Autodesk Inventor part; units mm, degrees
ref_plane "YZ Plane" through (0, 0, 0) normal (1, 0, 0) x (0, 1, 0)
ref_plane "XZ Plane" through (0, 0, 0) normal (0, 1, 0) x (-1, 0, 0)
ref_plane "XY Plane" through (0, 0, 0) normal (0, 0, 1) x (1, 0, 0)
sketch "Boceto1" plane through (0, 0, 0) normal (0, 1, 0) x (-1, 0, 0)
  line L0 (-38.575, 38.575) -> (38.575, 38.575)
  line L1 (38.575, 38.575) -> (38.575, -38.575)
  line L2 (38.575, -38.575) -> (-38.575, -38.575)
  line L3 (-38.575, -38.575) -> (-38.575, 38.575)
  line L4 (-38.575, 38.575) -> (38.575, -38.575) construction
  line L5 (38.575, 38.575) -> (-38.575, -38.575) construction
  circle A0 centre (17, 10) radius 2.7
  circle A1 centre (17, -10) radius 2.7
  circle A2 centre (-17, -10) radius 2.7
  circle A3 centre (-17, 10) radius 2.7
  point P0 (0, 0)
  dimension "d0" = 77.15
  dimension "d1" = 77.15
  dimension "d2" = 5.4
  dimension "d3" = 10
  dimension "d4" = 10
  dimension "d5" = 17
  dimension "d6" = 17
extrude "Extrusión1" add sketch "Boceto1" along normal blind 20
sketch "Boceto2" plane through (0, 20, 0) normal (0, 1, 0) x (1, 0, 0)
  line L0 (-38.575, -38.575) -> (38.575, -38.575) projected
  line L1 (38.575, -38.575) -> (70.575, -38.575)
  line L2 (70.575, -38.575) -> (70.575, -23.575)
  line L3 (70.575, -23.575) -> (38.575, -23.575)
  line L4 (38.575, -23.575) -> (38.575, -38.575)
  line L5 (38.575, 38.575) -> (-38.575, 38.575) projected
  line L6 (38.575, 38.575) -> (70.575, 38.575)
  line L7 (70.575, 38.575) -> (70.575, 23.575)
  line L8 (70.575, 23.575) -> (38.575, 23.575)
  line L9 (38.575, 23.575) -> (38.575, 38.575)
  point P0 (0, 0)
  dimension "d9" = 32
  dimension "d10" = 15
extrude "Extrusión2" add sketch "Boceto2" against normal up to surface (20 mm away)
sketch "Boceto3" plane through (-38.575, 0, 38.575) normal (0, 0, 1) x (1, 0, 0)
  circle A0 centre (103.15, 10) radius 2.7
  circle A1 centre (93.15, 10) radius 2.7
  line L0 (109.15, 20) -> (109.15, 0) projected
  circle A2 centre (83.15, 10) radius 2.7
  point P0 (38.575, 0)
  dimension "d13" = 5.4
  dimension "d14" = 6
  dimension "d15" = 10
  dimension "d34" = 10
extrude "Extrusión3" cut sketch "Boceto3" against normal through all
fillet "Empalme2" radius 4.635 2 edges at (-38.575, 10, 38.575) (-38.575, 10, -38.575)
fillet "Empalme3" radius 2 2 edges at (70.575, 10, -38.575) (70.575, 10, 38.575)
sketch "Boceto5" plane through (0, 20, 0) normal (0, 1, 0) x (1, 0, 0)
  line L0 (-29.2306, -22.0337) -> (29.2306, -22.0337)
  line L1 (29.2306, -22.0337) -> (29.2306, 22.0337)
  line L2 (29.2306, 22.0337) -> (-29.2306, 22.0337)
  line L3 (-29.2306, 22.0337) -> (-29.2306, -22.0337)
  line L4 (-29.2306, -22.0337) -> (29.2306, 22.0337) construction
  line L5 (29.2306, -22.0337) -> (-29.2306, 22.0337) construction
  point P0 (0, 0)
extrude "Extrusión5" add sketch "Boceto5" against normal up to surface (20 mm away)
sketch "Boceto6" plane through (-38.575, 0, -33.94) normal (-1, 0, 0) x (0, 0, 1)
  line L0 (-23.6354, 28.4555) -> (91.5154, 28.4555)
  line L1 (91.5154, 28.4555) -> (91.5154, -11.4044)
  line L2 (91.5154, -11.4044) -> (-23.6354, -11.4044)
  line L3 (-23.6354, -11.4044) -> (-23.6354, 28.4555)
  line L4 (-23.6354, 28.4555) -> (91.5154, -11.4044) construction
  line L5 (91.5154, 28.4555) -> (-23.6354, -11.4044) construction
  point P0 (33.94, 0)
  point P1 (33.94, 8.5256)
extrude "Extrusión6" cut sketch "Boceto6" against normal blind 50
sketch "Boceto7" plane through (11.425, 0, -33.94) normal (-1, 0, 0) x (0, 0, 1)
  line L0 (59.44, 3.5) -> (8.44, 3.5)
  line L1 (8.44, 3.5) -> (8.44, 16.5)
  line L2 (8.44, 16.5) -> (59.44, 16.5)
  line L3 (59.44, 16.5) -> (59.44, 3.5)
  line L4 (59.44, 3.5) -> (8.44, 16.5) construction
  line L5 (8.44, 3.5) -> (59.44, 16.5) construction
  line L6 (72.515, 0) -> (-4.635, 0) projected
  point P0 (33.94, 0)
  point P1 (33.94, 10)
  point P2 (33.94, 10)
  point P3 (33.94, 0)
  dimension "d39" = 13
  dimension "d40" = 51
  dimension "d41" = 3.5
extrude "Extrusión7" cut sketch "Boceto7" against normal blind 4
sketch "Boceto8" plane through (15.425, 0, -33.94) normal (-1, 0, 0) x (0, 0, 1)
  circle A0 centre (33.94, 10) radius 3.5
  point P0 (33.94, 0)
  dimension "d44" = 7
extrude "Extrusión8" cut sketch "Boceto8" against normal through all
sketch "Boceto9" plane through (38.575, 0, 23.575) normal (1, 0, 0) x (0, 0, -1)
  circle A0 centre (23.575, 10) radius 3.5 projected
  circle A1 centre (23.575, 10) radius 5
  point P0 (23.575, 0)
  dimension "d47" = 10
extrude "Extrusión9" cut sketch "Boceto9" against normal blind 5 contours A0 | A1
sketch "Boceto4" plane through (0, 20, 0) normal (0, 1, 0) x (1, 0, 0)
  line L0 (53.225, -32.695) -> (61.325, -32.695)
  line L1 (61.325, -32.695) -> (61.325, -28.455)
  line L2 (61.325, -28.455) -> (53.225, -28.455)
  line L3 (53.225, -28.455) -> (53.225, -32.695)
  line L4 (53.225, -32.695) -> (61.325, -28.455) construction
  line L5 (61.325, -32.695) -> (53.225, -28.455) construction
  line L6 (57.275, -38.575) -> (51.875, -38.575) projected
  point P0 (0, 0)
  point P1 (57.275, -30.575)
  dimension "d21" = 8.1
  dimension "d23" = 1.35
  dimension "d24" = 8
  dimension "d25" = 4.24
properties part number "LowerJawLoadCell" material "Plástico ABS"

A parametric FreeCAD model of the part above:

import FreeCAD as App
import Part
import Sketcher
Q = App.Units.Quantity


def edges_at(feature, points):
    """Names of the edges that pass closest to the given points."""
    edges = feature.Shape.Edges
    near = lambda p: min(range(len(edges)), key=lambda i: edges[i].distToShape(Part.Vertex(*p))[0])
    return sorted({f"Edge{near(p) + 1}" for p in points})

doc = App.newDocument("Part")
body = doc.addObject("PartDesign::Body", "Body")

sketch1 = doc.addObject("Sketcher::SketchObject", "Sketch")
body.addObject(sketch1)
sketch1.AttachmentSupport = (doc.XZ_Plane, [""])
sketch1.MapMode = "FlatFace"
sketch1.addGeometry(Part.LineSegment(App.Vector(-38.6, 38.6, 0), App.Vector(38.6, 38.6, 0)), False)
sketch1.addGeometry(Part.LineSegment(App.Vector(38.6, 38.6, 0), App.Vector(38.6, -38.6, 0)), False)
sketch1.addGeometry(Part.LineSegment(App.Vector(38.6, -38.6, 0), App.Vector(-38.6, -38.6, 0)), False)
sketch1.addGeometry(Part.LineSegment(App.Vector(-38.6, -38.6, 0), App.Vector(-38.6, 38.6, 0)), False)
sketch1.addGeometry(Part.Circle(App.Vector(17, -10, 0), App.Vector(0, 0, 1), 2.7), False)
sketch1.addGeometry(Part.Circle(App.Vector(-17, -10, 0), App.Vector(0, 0, 1), 2.7), False)
sketch1.addGeometry(Part.Circle(App.Vector(17, 10, 0), App.Vector(0, 0, 1), 2.7), False)
sketch1.addGeometry(Part.Circle(App.Vector(-17, 10, 0), App.Vector(0, 0, 1), 2.7), False)
sketch1.addConstraint(Sketcher.Constraint("Coincident", 0, 2, 1, 1))
sketch1.addConstraint(Sketcher.Constraint("Coincident", 1, 2, 2, 1))
sketch1.addConstraint(Sketcher.Constraint("Coincident", 2, 2, 3, 1))
sketch1.addConstraint(Sketcher.Constraint("Coincident", 3, 2, 0, 1))
sketch1.addConstraint(Sketcher.Constraint("Horizontal", 0))
sketch1.addConstraint(Sketcher.Constraint("Vertical", 1))
sketch1.addConstraint(Sketcher.Constraint("Horizontal", 2))
sketch1.addConstraint(Sketcher.Constraint("Vertical", 3))
sketch1.addConstraint(Sketcher.Constraint("Equal", 4, 5))
sketch1.addConstraint(Sketcher.Constraint("Equal", 5, 6))
sketch1.addConstraint(Sketcher.Constraint("Equal", 6, 7))
sketch1.addConstraint(Sketcher.Constraint("Symmetric", 5, 3, 6, 3, -1, 1))
sketch1.addConstraint(Sketcher.Constraint("Symmetric", 4, 3, 7, 3, -1, 1))
sketch1.addConstraint(Sketcher.Constraint("Symmetric", 0, 2, 2, 2, -1, 1))
sketch1.addConstraint(Sketcher.Constraint("Symmetric", 4, 3, 5, 3, -2))
sketch1.addConstraint(Sketcher.Constraint("Equal", 2, 1))
sketch1.addConstraint(Sketcher.Constraint("Diameter", 4, Q("5.4 mm")))
sketch1.addConstraint(Sketcher.Constraint("DistanceX", -1, 1, 4, 3, Q("17 mm")))
sketch1.addConstraint(Sketcher.Constraint("DistanceY", 4, 3, -1, 1, Q("10 mm")))
sketch1.addConstraint(Sketcher.Constraint("DistanceX", 0, 1, 0, 2, Q("77.15 mm")))
pad1 = doc.addObject("PartDesign::Pad", "Pad")
body.addObject(pad1)
pad1.Profile = sketch1
pad1.Length = 20
pad1.Reversed = True

sketch2 = doc.addObject("Sketcher::SketchObject", "Sketch001")
body.addObject(sketch2)
sketch2.AttachmentSupport = (doc.XZ_Plane, [""])
sketch2.MapMode = "FlatFace"
sketch2.AttachmentOffset = App.Placement(App.Vector(0, 0, -20), App.Rotation())
sketch2.addGeometry(Part.LineSegment(App.Vector(39, 24, 0), App.Vector(39, 39, 0)), False)
sketch2.addGeometry(Part.LineSegment(App.Vector(39, 39, 0), App.Vector(71, 39, 0)), False)
sketch2.addGeometry(Part.LineSegment(App.Vector(71, 39, 0), App.Vector(71, 24, 0)), False)
sketch2.addGeometry(Part.LineSegment(App.Vector(71, 24, 0), App.Vector(39, 24, 0)), False)
sketch2.addGeometry(Part.LineSegment(App.Vector(71, -39, 0), App.Vector(39, -39, 0)), False)
sketch2.addGeometry(Part.LineSegment(App.Vector(39, -39, 0), App.Vector(39, -24, 0)), False)
sketch2.addGeometry(Part.LineSegment(App.Vector(39, -24, 0), App.Vector(71, -24, 0)), False)
sketch2.addGeometry(Part.LineSegment(App.Vector(71, -24, 0), App.Vector(71, -39, 0)), False)
sketch2.addConstraint(Sketcher.Constraint("Coincident", 0, 2, 1, 1))
sketch2.addConstraint(Sketcher.Constraint("Coincident", 1, 2, 2, 1))
sketch2.addConstraint(Sketcher.Constraint("Coincident", 2, 2, 3, 1))
sketch2.addConstraint(Sketcher.Constraint("Coincident", 3, 2, 0, 1))
sketch2.addConstraint(Sketcher.Constraint("Coincident", 4, 2, 5, 1))
sketch2.addConstraint(Sketcher.Constraint("Coincident", 5, 2, 6, 1))
sketch2.addConstraint(Sketcher.Constraint("Coincident", 6, 2, 7, 1))
sketch2.addConstraint(Sketcher.Constraint("Coincident", 7, 2, 4, 1))
sketch2.addConstraint(Sketcher.Constraint("Vertical", 0))
sketch2.addConstraint(Sketcher.Constraint("Horizontal", 1))
sketch2.addConstraint(Sketcher.Constraint("Vertical", 2))
sketch2.addConstraint(Sketcher.Constraint("Horizontal", 3))
sketch2.addConstraint(Sketcher.Constraint("Horizontal", 4))
sketch2.addConstraint(Sketcher.Constraint("Vertical", 5))
sketch2.addConstraint(Sketcher.Constraint("Horizontal", 6))
sketch2.addConstraint(Sketcher.Constraint("Vertical", 7))
sketch2.addConstraint(Sketcher.Constraint("Symmetric", 0, 2, 4, 2, -1))
sketch2.addConstraint(Sketcher.Constraint("Symmetric", 2, 2, 6, 2, -1))
sketch2.addConstraint(Sketcher.Constraint("DistanceX", 1, 1, 1, 2, Q("32 mm")))
sketch2.addConstraint(Sketcher.Constraint("DistanceY", 0, 1, 0, 2, Q("15 mm")))
sketch2.addConstraint(Sketcher.Constraint("DistanceY", 4, 2, 3, 2, Q("62.15 mm")))
sketch2.addConstraint(Sketcher.Constraint("DistanceX", -1, 1, 0, 2, Q("38.575 mm")))
pad2 = doc.addObject("PartDesign::Pad", "Pad001")
body.addObject(pad2)
pad2.Profile = sketch2
pad2.Length = 20

sketch3 = doc.addObject("Sketcher::SketchObject", "Sketch002")
body.addObject(sketch3)
sketch3.AttachmentSupport = (doc.XY_Plane, [""])
sketch3.MapMode = "FlatFace"
sketch3.AttachmentOffset = App.Placement(App.Vector(0, 0, 38.575), App.Rotation())
sketch3.addGeometry(Part.Circle(App.Vector(64.6, 10, 0), App.Vector(0, 0, 1), 2.7), False)
sketch3.addGeometry(Part.Circle(App.Vector(54.6, 10, 0), App.Vector(0, 0, 1), 2.7), False)
sketch3.addGeometry(Part.Circle(App.Vector(44.6, 10, 0), App.Vector(0, 0, 1), 2.7), False)
sketch3.addConstraint(Sketcher.Constraint("Equal", 0, 1))
sketch3.addConstraint(Sketcher.Constraint("Equal", 1, 2))
sketch3.addConstraint(Sketcher.Constraint("Horizontal", 0, 3, 1, 3))
sketch3.addConstraint(Sketcher.Constraint("Horizontal", 1, 3, 2, 3))
sketch3.addConstraint(Sketcher.Constraint("Diameter", 0, Q("5.4 mm")))
sketch3.addConstraint(Sketcher.Constraint("DistanceY", -1, 1, 0, 3, Q("10 mm")))
sketch3.addConstraint(Sketcher.Constraint("DistanceX", 1, 3, 0, 3, Q("10 mm")))
sketch3.addConstraint(Sketcher.Constraint("DistanceX", 2, 3, 1, 3, Q("10 mm")))
sketch3.addConstraint(Sketcher.Constraint("DistanceX", -1, 1, 0, 3, Q("64.575 mm")))
pocket1 = doc.addObject("PartDesign::Pocket", "Pocket")
body.addObject(pocket1)
pocket1.Profile = sketch3
pocket1.Type = "ThroughAll"
doc.recompute()

fillet = doc.addObject("PartDesign::Fillet", "Fillet")
body.addObject(fillet)
fillet.Base = (pocket1, edges_at(pocket1, [(-38.575, 10, 38.575), (-38.575, 10, -38.575)]))
fillet.Radius = 4.635
doc.recompute()

fillet2 = doc.addObject("PartDesign::Fillet", "Fillet001")
body.addObject(fillet2)
fillet2.Base = (fillet, edges_at(fillet, [(70.575, 10, -38.575), (70.575, 10, 38.575)]))
fillet2.Radius = 2

sketch4 = doc.addObject("Sketcher::SketchObject", "Sketch003")
body.addObject(sketch4)
sketch4.AttachmentSupport = (doc.XZ_Plane, [""])
sketch4.MapMode = "FlatFace"
sketch4.AttachmentOffset = App.Placement(App.Vector(0, 0, -20), App.Rotation())
sketch4.addGeometry(Part.LineSegment(App.Vector(-29, -22, 0), App.Vector(-29, 22, 0)), False)
sketch4.addGeometry(Part.LineSegment(App.Vector(-29, 22, 0), App.Vector(29, 22, 0)), False)
sketch4.addGeometry(Part.LineSegment(App.Vector(29, 22, 0), App.Vector(29, -22, 0)), False)
sketch4.addGeometry(Part.LineSegment(App.Vector(29, -22, 0), App.Vector(-29, -22, 0)), False)
sketch4.addConstraint(Sketcher.Constraint("Coincident", 0, 2, 1, 1))
sketch4.addConstraint(Sketcher.Constraint("Coincident", 1, 2, 2, 1))
sketch4.addConstraint(Sketcher.Constraint("Coincident", 2, 2, 3, 1))
sketch4.addConstraint(Sketcher.Constraint("Coincident", 3, 2, 0, 1))
sketch4.addConstraint(Sketcher.Constraint("Vertical", 0))
sketch4.addConstraint(Sketcher.Constraint("Horizontal", 1))
sketch4.addConstraint(Sketcher.Constraint("Vertical", 2))
sketch4.addConstraint(Sketcher.Constraint("Horizontal", 3))
sketch4.addConstraint(Sketcher.Constraint("Symmetric", 0, 2, 2, 2, -1, 1))
sketch4.addConstraint(Sketcher.Constraint("DistanceX", 1, 1, 1, 2, Q("58.4612 mm")))
sketch4.addConstraint(Sketcher.Constraint("DistanceY", 0, 1, 0, 2, Q("44.0674 mm")))
pad3 = doc.addObject("PartDesign::Pad", "Pad002")
body.addObject(pad3)
pad3.Profile = sketch4
pad3.Length = 20

sketch5 = doc.addObject("Sketcher::SketchObject", "Sketch004")
body.addObject(sketch5)
sketch5.AttachmentSupport = (doc.YZ_Plane, [""])
sketch5.MapMode = "FlatFace"
sketch5.AttachmentOffset = App.Placement(App.Vector(0, 0, -38.575), App.Rotation())
sketch5.addGeometry(Part.LineSegment(App.Vector(28, 58, 0), App.Vector(28, -58, 0)), False)
sketch5.addGeometry(Part.LineSegment(App.Vector(28, -58, 0), App.Vector(-11, -58, 0)), False)
sketch5.addGeometry(Part.LineSegment(App.Vector(-11, -58, 0), App.Vector(-11, 58, 0)), False)
sketch5.addGeometry(Part.LineSegment(App.Vector(-11, 58, 0), App.Vector(28, 58, 0)), False)
sketch5.addConstraint(Sketcher.Constraint("Coincident", 0, 2, 1, 1))
sketch5.addConstraint(Sketcher.Constraint("Coincident", 1, 2, 2, 1))
sketch5.addConstraint(Sketcher.Constraint("Coincident", 2, 2, 3, 1))
sketch5.addConstraint(Sketcher.Constraint("Coincident", 3, 2, 0, 1))
sketch5.addConstraint(Sketcher.Constraint("Vertical", 0))
sketch5.addConstraint(Sketcher.Constraint("Horizontal", 1))
sketch5.addConstraint(Sketcher.Constraint("Vertical", 2))
sketch5.addConstraint(Sketcher.Constraint("Horizontal", 3))
sketch5.addConstraint(Sketcher.Constraint("DistanceX", 1, 2, 1, 1, Q("39.86 mm")))
sketch5.addConstraint(Sketcher.Constraint("DistanceY", 0, 2, 0, 1, Q("115.1508 mm")))
sketch5.addConstraint(Sketcher.Constraint("DistanceX", -1, 1, 0, 2, Q("28.4555 mm")))
sketch5.addConstraint(Sketcher.Constraint("DistanceY", 0, 2, -1, 1, Q("57.5754 mm")))
pocket2 = doc.addObject("PartDesign::Pocket", "Pocket001")
body.addObject(pocket2)
pocket2.Profile = sketch5
pocket2.Length = 50
pocket2.Reversed = True

sketch6 = doc.addObject("Sketcher::SketchObject", "Sketch005")
body.addObject(sketch6)
sketch6.AttachmentSupport = (doc.YZ_Plane, [""])
sketch6.MapMode = "FlatFace"
sketch6.AttachmentOffset = App.Placement(App.Vector(0, 0, 11.425), App.Rotation())
sketch6.addGeometry(Part.LineSegment(App.Vector(4, -26, 0), App.Vector(4, 26, 0)), False)
sketch6.addGeometry(Part.LineSegment(App.Vector(4, 26, 0), App.Vector(16, 26, 0)), False)
sketch6.addGeometry(Part.LineSegment(App.Vector(16, 26, 0), App.Vector(16, -26, 0)), False)
sketch6.addGeometry(Part.LineSegment(App.Vector(16, -26, 0), App.Vector(4, -26, 0)), False)
sketch6.addConstraint(Sketcher.Constraint("Coincident", 0, 2, 1, 1))
sketch6.addConstraint(Sketcher.Constraint("Coincident", 1, 2, 2, 1))
sketch6.addConstraint(Sketcher.Constraint("Coincident", 2, 2, 3, 1))
sketch6.addConstraint(Sketcher.Constraint("Coincident", 3, 2, 0, 1))
sketch6.addConstraint(Sketcher.Constraint("Vertical", 0))
sketch6.addConstraint(Sketcher.Constraint("Horizontal", 1))
sketch6.addConstraint(Sketcher.Constraint("Vertical", 2))
sketch6.addConstraint(Sketcher.Constraint("Horizontal", 3))
sketch6.addConstraint(Sketcher.Constraint("DistanceX", 1, 1, 1, 2, Q("13 mm")))
sketch6.addConstraint(Sketcher.Constraint("DistanceY", 0, 1, 0, 2, Q("51 mm")))
sketch6.addConstraint(Sketcher.Constraint("DistanceX", -1, 1, 0, 2, Q("3.5 mm")))
sketch6.addConstraint(Sketcher.Constraint("DistanceY", -1, 1, 0, 2, Q("25.5 mm")))
pocket3 = doc.addObject("PartDesign::Pocket", "Pocket002")
body.addObject(pocket3)
pocket3.Profile = sketch6
pocket3.Length = 4
pocket3.Reversed = True

sketch7 = doc.addObject("Sketcher::SketchObject", "Sketch006")
body.addObject(sketch7)
sketch7.AttachmentSupport = (doc.YZ_Plane, [""])
sketch7.MapMode = "FlatFace"
sketch7.AttachmentOffset = App.Placement(App.Vector(0, 0, 15.425), App.Rotation())
sketch7.addGeometry(Part.Circle(App.Vector(10, 0, 0), App.Vector(0, 0, 1), 3.5), False)
sketch7.addConstraint(Sketcher.Constraint("PointOnObject", 0, 3, -1))
sketch7.addConstraint(Sketcher.Constraint("Diameter", 0, Q("7 mm")))
sketch7.addConstraint(Sketcher.Constraint("DistanceX", -1, 1, 0, 3, Q("10 mm")))
pocket4 = doc.addObject("PartDesign::Pocket", "Pocket003")
body.addObject(pocket4)
pocket4.Profile = sketch7
pocket4.Type = "ThroughAll"
pocket4.Reversed = True

sketch8 = doc.addObject("Sketcher::SketchObject", "Sketch007")
body.addObject(sketch8)
sketch8.AttachmentSupport = (doc.YZ_Plane, [""])
sketch8.MapMode = "FlatFace"
sketch8.AttachmentOffset = App.Placement(App.Vector(0, 0, 38.575), App.Rotation())
sketch8.addGeometry(Part.Circle(App.Vector(10, 0, 0), App.Vector(0, 0, 1), 5), False)
sketch8.addConstraint(Sketcher.Constraint("PointOnObject", 0, 3, -1))
sketch8.addConstraint(Sketcher.Constraint("Diameter", 0, Q("10 mm")))
sketch8.addConstraint(Sketcher.Constraint("DistanceX", -1, 1, 0, 3, Q("10 mm")))
pocket5 = doc.addObject("PartDesign::Pocket", "Pocket004")
body.addObject(pocket5)
pocket5.Profile = sketch8
pocket5.Length = 5

doc.recompute()
